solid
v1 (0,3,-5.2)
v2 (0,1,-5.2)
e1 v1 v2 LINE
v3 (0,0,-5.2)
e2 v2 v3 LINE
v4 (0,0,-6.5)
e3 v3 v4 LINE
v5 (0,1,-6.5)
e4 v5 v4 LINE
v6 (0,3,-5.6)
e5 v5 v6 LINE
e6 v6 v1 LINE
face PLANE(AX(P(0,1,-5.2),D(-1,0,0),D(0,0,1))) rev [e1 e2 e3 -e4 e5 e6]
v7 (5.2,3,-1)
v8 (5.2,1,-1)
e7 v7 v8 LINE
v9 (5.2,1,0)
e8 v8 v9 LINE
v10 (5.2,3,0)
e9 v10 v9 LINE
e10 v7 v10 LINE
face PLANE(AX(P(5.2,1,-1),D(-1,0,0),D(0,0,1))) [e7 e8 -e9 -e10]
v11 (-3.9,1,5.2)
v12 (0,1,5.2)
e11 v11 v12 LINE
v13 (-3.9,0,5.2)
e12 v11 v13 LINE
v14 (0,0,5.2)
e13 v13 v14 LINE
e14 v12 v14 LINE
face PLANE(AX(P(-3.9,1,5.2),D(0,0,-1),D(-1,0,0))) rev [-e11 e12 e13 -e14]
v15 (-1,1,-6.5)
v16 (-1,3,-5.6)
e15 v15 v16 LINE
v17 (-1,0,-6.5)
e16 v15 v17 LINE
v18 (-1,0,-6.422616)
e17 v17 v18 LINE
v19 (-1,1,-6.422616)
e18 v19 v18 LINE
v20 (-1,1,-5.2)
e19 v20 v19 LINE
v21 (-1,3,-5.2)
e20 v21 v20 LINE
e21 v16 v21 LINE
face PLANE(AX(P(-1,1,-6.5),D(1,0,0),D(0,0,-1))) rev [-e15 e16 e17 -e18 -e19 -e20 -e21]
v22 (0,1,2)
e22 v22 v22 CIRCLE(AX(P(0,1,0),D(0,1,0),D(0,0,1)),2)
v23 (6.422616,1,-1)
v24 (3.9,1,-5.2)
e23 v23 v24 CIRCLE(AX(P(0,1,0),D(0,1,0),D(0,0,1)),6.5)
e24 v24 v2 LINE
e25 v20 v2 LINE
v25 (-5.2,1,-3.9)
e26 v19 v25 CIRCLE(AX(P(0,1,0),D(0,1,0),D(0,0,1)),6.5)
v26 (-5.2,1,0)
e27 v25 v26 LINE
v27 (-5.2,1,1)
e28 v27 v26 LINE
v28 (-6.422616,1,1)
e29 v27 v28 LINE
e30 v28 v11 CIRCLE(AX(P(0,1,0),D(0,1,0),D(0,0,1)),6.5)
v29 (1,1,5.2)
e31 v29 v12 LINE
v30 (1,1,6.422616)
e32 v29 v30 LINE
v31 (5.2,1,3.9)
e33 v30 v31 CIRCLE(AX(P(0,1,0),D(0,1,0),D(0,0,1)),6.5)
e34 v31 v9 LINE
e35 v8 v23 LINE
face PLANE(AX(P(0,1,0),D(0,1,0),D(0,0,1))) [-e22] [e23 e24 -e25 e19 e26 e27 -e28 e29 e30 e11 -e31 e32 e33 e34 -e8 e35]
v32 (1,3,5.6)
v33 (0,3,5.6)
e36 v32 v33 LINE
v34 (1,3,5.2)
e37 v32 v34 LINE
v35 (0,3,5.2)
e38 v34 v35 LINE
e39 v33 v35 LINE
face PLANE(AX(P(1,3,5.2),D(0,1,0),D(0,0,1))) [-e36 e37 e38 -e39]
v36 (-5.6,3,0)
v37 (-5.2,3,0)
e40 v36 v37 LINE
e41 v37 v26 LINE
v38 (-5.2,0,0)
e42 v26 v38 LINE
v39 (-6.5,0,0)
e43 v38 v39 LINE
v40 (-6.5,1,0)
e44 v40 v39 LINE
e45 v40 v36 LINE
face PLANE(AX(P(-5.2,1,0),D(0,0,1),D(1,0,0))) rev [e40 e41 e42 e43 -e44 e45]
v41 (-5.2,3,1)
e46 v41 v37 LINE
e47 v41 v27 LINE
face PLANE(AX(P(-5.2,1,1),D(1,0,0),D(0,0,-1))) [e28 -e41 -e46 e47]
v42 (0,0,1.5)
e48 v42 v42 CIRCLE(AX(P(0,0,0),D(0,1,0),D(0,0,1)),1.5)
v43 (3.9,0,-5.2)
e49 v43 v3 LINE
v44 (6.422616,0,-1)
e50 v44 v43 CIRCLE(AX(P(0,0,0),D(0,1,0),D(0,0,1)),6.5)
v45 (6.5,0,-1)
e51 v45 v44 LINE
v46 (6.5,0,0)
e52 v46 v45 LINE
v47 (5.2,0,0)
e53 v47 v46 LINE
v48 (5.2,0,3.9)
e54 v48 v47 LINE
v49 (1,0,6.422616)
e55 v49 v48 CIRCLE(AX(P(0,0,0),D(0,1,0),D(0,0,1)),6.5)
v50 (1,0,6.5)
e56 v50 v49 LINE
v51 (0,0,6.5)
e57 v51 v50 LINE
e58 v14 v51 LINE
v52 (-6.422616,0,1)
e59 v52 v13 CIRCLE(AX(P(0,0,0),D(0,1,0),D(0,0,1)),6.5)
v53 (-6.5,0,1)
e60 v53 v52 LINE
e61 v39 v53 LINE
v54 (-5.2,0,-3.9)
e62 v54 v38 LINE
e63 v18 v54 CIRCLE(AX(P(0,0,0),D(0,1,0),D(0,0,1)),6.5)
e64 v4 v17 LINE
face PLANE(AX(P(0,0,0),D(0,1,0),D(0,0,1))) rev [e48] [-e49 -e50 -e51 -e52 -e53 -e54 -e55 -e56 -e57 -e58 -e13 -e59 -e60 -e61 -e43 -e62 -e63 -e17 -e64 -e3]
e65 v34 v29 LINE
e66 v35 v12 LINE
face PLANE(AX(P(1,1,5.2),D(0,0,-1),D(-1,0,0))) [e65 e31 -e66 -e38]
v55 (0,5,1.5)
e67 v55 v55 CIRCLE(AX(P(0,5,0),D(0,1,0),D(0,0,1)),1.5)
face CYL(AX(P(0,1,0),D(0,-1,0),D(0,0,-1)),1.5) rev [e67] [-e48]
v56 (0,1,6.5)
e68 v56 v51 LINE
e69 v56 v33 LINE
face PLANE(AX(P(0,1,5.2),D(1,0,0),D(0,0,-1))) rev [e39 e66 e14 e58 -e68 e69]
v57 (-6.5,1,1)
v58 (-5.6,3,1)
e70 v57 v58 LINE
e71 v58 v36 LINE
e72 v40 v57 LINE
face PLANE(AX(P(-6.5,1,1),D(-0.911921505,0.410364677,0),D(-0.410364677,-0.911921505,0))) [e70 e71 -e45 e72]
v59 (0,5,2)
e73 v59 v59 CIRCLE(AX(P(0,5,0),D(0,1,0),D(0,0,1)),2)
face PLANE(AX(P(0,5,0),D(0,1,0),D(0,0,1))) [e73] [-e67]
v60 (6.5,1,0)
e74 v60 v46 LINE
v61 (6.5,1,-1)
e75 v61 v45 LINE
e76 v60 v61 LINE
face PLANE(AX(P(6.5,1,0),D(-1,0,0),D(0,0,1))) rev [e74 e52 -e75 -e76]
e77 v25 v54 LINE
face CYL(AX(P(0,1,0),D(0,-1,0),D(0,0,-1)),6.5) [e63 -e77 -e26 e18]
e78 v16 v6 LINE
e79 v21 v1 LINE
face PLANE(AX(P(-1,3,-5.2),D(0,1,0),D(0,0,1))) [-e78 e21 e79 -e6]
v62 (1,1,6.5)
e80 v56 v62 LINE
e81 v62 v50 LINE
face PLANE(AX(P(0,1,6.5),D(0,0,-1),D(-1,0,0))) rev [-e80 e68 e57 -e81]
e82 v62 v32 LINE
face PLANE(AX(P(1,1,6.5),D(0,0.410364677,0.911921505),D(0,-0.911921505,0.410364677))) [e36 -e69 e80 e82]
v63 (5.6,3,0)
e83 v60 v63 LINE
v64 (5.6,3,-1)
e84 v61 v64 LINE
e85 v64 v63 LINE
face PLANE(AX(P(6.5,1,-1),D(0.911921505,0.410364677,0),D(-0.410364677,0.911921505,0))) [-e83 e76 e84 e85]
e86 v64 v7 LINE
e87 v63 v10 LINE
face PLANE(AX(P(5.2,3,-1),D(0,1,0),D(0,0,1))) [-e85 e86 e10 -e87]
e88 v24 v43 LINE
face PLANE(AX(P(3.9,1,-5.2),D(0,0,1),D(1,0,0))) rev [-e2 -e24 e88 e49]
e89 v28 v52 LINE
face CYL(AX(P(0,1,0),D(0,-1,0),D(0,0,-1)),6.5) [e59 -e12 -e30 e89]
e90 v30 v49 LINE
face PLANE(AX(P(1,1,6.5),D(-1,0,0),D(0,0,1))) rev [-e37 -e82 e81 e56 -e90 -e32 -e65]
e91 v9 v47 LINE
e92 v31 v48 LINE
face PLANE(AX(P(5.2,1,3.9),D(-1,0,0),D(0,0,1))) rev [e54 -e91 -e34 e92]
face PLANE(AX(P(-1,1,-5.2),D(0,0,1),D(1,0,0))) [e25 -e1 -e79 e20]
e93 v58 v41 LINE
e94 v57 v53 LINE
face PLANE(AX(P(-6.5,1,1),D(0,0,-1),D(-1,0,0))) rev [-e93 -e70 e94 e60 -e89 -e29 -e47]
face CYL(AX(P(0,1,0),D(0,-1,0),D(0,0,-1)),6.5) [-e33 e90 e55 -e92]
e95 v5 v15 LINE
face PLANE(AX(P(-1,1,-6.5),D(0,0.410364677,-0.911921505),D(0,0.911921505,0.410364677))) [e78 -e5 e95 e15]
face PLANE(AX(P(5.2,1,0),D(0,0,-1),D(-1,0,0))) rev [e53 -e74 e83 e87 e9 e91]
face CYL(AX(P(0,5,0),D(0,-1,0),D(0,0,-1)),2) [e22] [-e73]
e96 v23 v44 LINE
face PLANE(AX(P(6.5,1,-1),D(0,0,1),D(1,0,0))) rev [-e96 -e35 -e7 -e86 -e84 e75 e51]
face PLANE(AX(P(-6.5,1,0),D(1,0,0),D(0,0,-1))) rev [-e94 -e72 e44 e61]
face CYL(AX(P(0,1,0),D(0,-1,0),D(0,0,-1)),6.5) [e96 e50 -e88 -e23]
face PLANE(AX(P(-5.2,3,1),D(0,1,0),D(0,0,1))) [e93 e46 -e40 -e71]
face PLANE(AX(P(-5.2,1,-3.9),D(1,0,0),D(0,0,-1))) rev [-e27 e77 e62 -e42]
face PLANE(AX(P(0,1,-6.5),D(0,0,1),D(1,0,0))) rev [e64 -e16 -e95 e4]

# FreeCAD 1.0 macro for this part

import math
import FreeCAD as App
import Part
import Sketcher

V = App.Vector

doc = App.newDocument("Part")
params = doc.addObject("Spreadsheet::Sheet", "Params")
for row, (alias, value) in enumerate([
    ("sketch1_diameter", "3 mm"),
    ("sketch1_radius", "6.5 mm"),
    ("sketch1_width", "1 mm"),
    ("sketch1_width2", "1.3 mm"),
    ("sketch1_width3", "3.9 mm"),
    ("pad1_length", "1 mm"),
    ("sketch2_width", "2 mm"),
    ("sketch2_height", "1.3 mm"),
    ("sketch2_height2", "0.4 mm"),
    ("pad2_length", "1 mm"),
    ("sketch3_diameter", "4 mm"),
    ("sketch3_diameter2", "3 mm"),
    ("pad3_length", "4 mm"),
], start=1):
    params.set(f"A{row}", alias)
    params.set(f"B{row}", "=" + value)
    params.setAlias(f"B{row}", alias)

body = doc.addObject("PartDesign::Body", "Body")

# Sketch on XZ plane
sketch1 = body.newObject("Sketcher::SketchObject", "Sketch")
sketch1.AttachmentSupport = (doc.getObject("XZ_Plane"), [""])
sketch1.MapMode = "FlatFace"
sketch1.addGeometry(Part.LineSegment(V(-5.2, -3.9, 0), V(-5.2, 0, 0)), False)
sketch1.addGeometry(Part.LineSegment(V(-5.2, 0, 0), V(-6.5, 0, 0)), False)
sketch1.addGeometry(Part.LineSegment(V(-6.5, 0, 0), V(-6.5, 1, 0)), False)
sketch1.addGeometry(Part.LineSegment(V(-6.5, 1, 0), V(-6.42, 1, 0)), False)
sketch1.addGeometry(Part.ArcOfCircle(Part.Circle(V(0, 0, 0), V(0, 0, 1), 6.5), math.radians(127), math.radians(171)), False)
sketch1.addGeometry(Part.LineSegment(V(-3.9, 5.2, 0), V(0, 5.2, 0)), False)
sketch1.addGeometry(Part.LineSegment(V(0, 5.2, 0), V(0, 6.5, 0)), False)
sketch1.addGeometry(Part.LineSegment(V(0, 6.5, 0), V(1, 6.5, 0)), False)
sketch1.addGeometry(Part.LineSegment(V(1, 6.5, 0), V(1, 6.42, 0)), False)
sketch1.addGeometry(Part.ArcOfCircle(Part.Circle(V(0, 0, 0), V(0, 0, 1), 6.5), math.radians(37), math.radians(81)), False)
sketch1.addGeometry(Part.LineSegment(V(5.2, 3.9, 0), V(5.2, 0, 0)), False)
sketch1.addGeometry(Part.LineSegment(V(5.2, 0, 0), V(6.5, 0, 0)), False)
sketch1.addGeometry(Part.LineSegment(V(6.5, 0, 0), V(6.5, -1, 0)), False)
sketch1.addGeometry(Part.LineSegment(V(6.5, -1, 0), V(6.42, -1, 0)), False)
sketch1.addGeometry(Part.ArcOfCircle(Part.Circle(V(0, 0, 0), V(0, 0, 1), 6.5), math.radians(-53), math.radians(-9)), False)
sketch1.addGeometry(Part.LineSegment(V(3.9, -5.2, 0), V(0, -5.2, 0)), False)
sketch1.addGeometry(Part.LineSegment(V(0, -5.2, 0), V(0, -6.5, 0)), False)
sketch1.addGeometry(Part.LineSegment(V(0, -6.5, 0), V(-1, -6.5, 0)), False)
sketch1.addGeometry(Part.LineSegment(V(-1, -6.5, 0), V(-1, -6.42, 0)), False)
sketch1.addGeometry(Part.ArcOfCircle(Part.Circle(V(0, 0, 0), V(0, 0, 1), 6.5), math.radians(-143), math.radians(-99)), False)
sketch1.addGeometry(Part.Circle(V(0, 0, 0), V(0, 0, 1), 1.5), False)
sketch1.addConstraint(Sketcher.Constraint("Coincident", 0, 2, 1, 1))
sketch1.addConstraint(Sketcher.Constraint("Coincident", 1, 2, 2, 1))
sketch1.addConstraint(Sketcher.Constraint("Coincident", 2, 2, 3, 1))
sketch1.addConstraint(Sketcher.Constraint("Coincident", 3, 2, 4, 2))
sketch1.addConstraint(Sketcher.Constraint("Coincident", 4, 1, 5, 1))
sketch1.addConstraint(Sketcher.Constraint("Coincident", 5, 2, 6, 1))
sketch1.addConstraint(Sketcher.Constraint("Coincident", 6, 2, 7, 1))
sketch1.addConstraint(Sketcher.Constraint("Coincident", 7, 2, 8, 1))
sketch1.addConstraint(Sketcher.Constraint("Coincident", 8, 2, 9, 2))
sketch1.addConstraint(Sketcher.Constraint("Coincident", 9, 1, 10, 1))
sketch1.addConstraint(Sketcher.Constraint("Coincident", 10, 2, 11, 1))
sketch1.addConstraint(Sketcher.Constraint("Coincident", 11, 2, 12, 1))
sketch1.addConstraint(Sketcher.Constraint("Coincident", 12, 2, 13, 1))
sketch1.addConstraint(Sketcher.Constraint("Coincident", 13, 2, 14, 2))
sketch1.addConstraint(Sketcher.Constraint("Coincident", 14, 1, 15, 1))
sketch1.addConstraint(Sketcher.Constraint("Coincident", 15, 2, 16, 1))
sketch1.addConstraint(Sketcher.Constraint("Coincident", 16, 2, 17, 1))
sketch1.addConstraint(Sketcher.Constraint("Coincident", 17, 2, 18, 1))
sketch1.addConstraint(Sketcher.Constraint("Coincident", 18, 2, 19, 2))
sketch1.addConstraint(Sketcher.Constraint("Coincident", 19, 1, 0, 1))
sketch1.addConstraint(Sketcher.Constraint("Vertical", 0))
sketch1.addConstraint(Sketcher.Constraint("Horizontal", 1))
sketch1.addConstraint(Sketcher.Constraint("Vertical", 2))
sketch1.addConstraint(Sketcher.Constraint("Horizontal", 3))
sketch1.addConstraint(Sketcher.Constraint("Horizontal", 5))
sketch1.addConstraint(Sketcher.Constraint("Vertical", 6))
sketch1.addConstraint(Sketcher.Constraint("Horizontal", 7))
sketch1.addConstraint(Sketcher.Constraint("Vertical", 8))
sketch1.addConstraint(Sketcher.Constraint("Vertical", 10))
sketch1.addConstraint(Sketcher.Constraint("Horizontal", 11))
sketch1.addConstraint(Sketcher.Constraint("Vertical", 12))
sketch1.addConstraint(Sketcher.Constraint("Horizontal", 13))
sketch1.addConstraint(Sketcher.Constraint("Horizontal", 15))
sketch1.addConstraint(Sketcher.Constraint("Vertical", 16))
sketch1.addConstraint(Sketcher.Constraint("Horizontal", 17))
sketch1.addConstraint(Sketcher.Constraint("Vertical", 18))
sketch1.addConstraint(Sketcher.Constraint("Coincident", 4, 3, -1, 1))
sketch1.addConstraint(Sketcher.Constraint("Coincident", 9, 3, -1, 1))
sketch1.addConstraint(Sketcher.Constraint("Coincident", 14, 3, -1, 1))
sketch1.addConstraint(Sketcher.Constraint("Coincident", 19, 3, -1, 1))
sketch1.addConstraint(Sketcher.Constraint("Coincident", 20, 3, -1, 1))
sketch1.addConstraint(Sketcher.Constraint("Equal", 4, 9))
sketch1.addConstraint(Sketcher.Constraint("Equal", 9, 14))
sketch1.addConstraint(Sketcher.Constraint("Equal", 14, 19))
sketch1.addConstraint(Sketcher.Constraint("Symmetric", 0, 2, 10, 2, -1, 1))
sketch1.addConstraint(Sketcher.Constraint("Symmetric", 2, 2, 12, 2, -1, 1))
sketch1.addConstraint(Sketcher.Constraint("Symmetric", 5, 2, 15, 2, -1, 1))
sketch1.addConstraint(Sketcher.Constraint("Symmetric", 7, 2, 17, 2, -1, 1))
sketch1.addConstraint(Sketcher.Constraint("PointOnObject", 0, 2, -1))
sketch1.addConstraint(Sketcher.Constraint("PointOnObject", 5, 2, -2))
sketch1.addConstraint(Sketcher.Constraint("Equal", 15, 0))
sketch1.addConstraint(Sketcher.Constraint("Equal", 17, 2))
sketch1.addConstraint(Sketcher.Constraint("Equal", 11, 6))
sketch1.addConstraint(Sketcher.Constraint("Diameter", 20, 3.0))
sketch1.addConstraint(Sketcher.Constraint("Radius", 4, 6.5))
sketch1.addConstraint(Sketcher.Constraint("DistanceX", 7, 1, 7, 2, 1.0))
sketch1.addConstraint(Sketcher.Constraint("DistanceX", 1, 2, 1, 1, 1.3))
sketch1.addConstraint(Sketcher.Constraint("DistanceX", 5, 1, 5, 2, 3.9))
sketch1.setExpression("Constraints[53]", "Params.sketch1_diameter")
sketch1.setExpression("Constraints[54]", "Params.sketch1_radius")
sketch1.setExpression("Constraints[55]", "Params.sketch1_width")
sketch1.setExpression("Constraints[56]", "Params.sketch1_width2")
sketch1.setExpression("Constraints[57]", "Params.sketch1_width3")
pad1 = body.newObject("PartDesign::Pad", "Pad")
pad1.Profile = sketch1
pad1.setExpression("Length", "Params.pad1_length")
pad1.Reversed = True

# Sketch on YZ plane
sketch2 = body.newObject("Sketcher::SketchObject", "Sketch001")
sketch2.AttachmentSupport = (doc.getObject("YZ_Plane"), [""])
sketch2.MapMode = "FlatFace"
sketch2.addGeometry(Part.LineSegment(V(3, 5.2, 0), V(1, 5.2, 0)), False)
sketch2.addGeometry(Part.LineSegment(V(1, 5.2, 0), V(1, 6.5, 0)), False)
sketch2.addGeometry(Part.LineSegment(V(1, 6.5, 0), V(3, 5.6, 0)), False)
sketch2.addGeometry(Part.LineSegment(V(3, 5.6, 0), V(3, 5.2, 0)), False)
sketch2.addConstraint(Sketcher.Constraint("Coincident", 0, 2, 1, 1))
sketch2.addConstraint(Sketcher.Constraint("Coincident", 1, 2, 2, 1))
sketch2.addConstraint(Sketcher.Constraint("Coincident", 2, 2, 3, 1))
sketch2.addConstraint(Sketcher.Constraint("Coincident", 3, 2, 0, 1))
sketch2.addConstraint(Sketcher.Constraint("Horizontal", 0))
sketch2.addConstraint(Sketcher.Constraint("Vertical", 1))
sketch2.addConstraint(Sketcher.Constraint("Vertical", 3))
sketch2.addConstraint(Sketcher.Constraint("DistanceX", 0, 2, 0, 1, 2.0))
sketch2.addConstraint(Sketcher.Constraint("DistanceY", 1, 1, 1, 2, 1.3))
sketch2.addConstraint(Sketcher.Constraint("DistanceY", 3, 2, 3, 1, 0.4))
sketch2.addConstraint(Sketcher.Constraint("DistanceX", -1, 1, 0, 2, 1.0))
sketch2.addConstraint(Sketcher.Constraint("DistanceY", -1, 1, 0, 2, 5.2))
sketch2.setExpression("Constraints[7]", "Params.sketch2_width")
sketch2.setExpression("Constraints[8]", "Params.sketch2_height")
sketch2.setExpression("Constraints[9]", "Params.sketch2_height2")
pad2 = body.newObject("PartDesign::Pad", "Pad001")
pad2.Profile = sketch2
pad2.setExpression("Length", "Params.pad2_length")
doc.recompute()

polarpattern = body.newObject("PartDesign::PolarPattern", "PolarPattern")
polarpattern.Originals = [pad2]
polarpattern.Axis = (doc.getObject("Y_Axis"), [""])
polarpattern.Angle = 360
polarpattern.Occurrences = 4
body.Tip = polarpattern

# Sketch on XZ plane
sketch3 = body.newObject("Sketcher::SketchObject", "Sketch002")
sketch3.AttachmentSupport = (doc.getObject("XZ_Plane"), [""])
sketch3.MapMode = "FlatFace"
sketch3.AttachmentOffset = App.Placement(V(0, 0, -1), App.Rotation())
sketch3.addGeometry(Part.Circle(V(0, 0, 0), V(0, 0, 1), 2), False)
sketch3.addGeometry(Part.Circle(V(0, 0, 0), V(0, 0, 1), 1.5), False)
sketch3.addConstraint(Sketcher.Constraint("Coincident", 0, 3, -1, 1))
sketch3.addConstraint(Sketcher.Constraint("Coincident", 1, 3, -1, 1))
sketch3.addConstraint(Sketcher.Constraint("Diameter", 0, 4.0))
sketch3.addConstraint(Sketcher.Constraint("Diameter", 1, 3.0))
sketch3.setExpression("Constraints[2]", "Params.sketch3_diameter")
sketch3.setExpression("Constraints[3]", "Params.sketch3_diameter2")
pad3 = body.newObject("PartDesign::Pad", "Pad002")
pad3.Profile = sketch3
pad3.setExpression("Length", "Params.pad3_length")
pad3.Reversed = True

doc.recompute()
